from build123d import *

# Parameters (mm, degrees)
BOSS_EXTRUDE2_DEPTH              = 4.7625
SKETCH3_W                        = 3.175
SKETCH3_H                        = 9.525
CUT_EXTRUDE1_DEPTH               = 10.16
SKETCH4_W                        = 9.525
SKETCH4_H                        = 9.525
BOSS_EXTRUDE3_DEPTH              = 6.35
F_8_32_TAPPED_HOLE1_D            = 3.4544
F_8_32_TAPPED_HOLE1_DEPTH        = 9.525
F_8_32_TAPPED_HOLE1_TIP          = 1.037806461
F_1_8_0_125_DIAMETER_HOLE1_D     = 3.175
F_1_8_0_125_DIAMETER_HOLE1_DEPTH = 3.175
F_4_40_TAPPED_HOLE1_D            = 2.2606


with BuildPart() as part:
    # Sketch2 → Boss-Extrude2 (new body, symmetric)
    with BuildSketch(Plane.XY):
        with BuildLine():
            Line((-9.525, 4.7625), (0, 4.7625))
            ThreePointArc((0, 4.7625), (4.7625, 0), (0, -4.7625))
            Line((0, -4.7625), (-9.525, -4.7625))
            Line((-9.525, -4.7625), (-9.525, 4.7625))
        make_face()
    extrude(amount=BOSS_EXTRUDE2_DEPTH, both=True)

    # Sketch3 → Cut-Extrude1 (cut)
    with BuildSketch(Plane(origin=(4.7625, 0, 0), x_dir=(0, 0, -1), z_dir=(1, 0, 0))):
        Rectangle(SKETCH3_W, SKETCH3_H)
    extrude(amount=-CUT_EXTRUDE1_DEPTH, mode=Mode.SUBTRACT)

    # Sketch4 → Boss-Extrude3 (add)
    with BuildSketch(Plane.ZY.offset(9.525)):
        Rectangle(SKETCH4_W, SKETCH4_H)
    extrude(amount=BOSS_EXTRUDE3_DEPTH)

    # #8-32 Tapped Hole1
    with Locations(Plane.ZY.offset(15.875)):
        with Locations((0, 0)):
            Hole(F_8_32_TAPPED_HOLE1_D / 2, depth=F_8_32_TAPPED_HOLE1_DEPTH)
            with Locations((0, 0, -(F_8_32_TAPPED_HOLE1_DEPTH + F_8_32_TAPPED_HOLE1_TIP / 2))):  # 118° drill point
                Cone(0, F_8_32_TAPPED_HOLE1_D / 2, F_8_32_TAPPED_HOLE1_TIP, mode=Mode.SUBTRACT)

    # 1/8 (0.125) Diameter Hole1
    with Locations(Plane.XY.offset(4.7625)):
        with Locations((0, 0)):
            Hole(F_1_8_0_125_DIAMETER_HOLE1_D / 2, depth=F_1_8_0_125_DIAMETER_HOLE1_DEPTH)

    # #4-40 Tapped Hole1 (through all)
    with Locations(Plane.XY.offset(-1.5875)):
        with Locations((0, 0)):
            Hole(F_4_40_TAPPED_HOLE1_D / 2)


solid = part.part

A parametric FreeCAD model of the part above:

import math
import FreeCAD as App
import Part
import Sketcher
from FreeCAD import Vector
Q = App.Units.Quantity


def add_polygon(sketch, points):
    """Adds a closed chain of lines whose ends are joined by coincident constraints."""
    first, n = sketch.GeometryCount, len(points)
    for a, b in zip(points, points[1:] + points[:1]):
        sketch.addGeometry(Part.LineSegment(App.Vector(*a, 0), App.Vector(*b, 0)), False)
    for i in range(n):
        sketch.addConstraint(Sketcher.Constraint("Coincident", first + i, 2, first + (i + 1) % n, 1))

doc = App.newDocument("Part")
params = doc.addObject("Spreadsheet::Sheet", "Params")
for row, (alias, value) in enumerate([
    ("sketch1_radius", "0.1875 in"),
    ("pad1_length", "0.375 in"),
    ("sketch2_width", "0.375 in"),
    ("sketch2_height", "0.125 in"),
    ("pocket1_length", "0.4 in"),
    ("sketch3_width", "0.375 in"),
    ("pad2_length", "0.25 in"),
    ("sketch4_diameter", "0.136 in"),
    ("hole_diameter", "0.136 in"),
    ("hole_depth", "0.375 in"),
    ("sketch5_diameter", "0.125 in"),
    ("hole2_diameter", "0.125 in"),
    ("hole2_depth", "0.125 in"),
    ("sketch6_diameter", "0.089 in"),
    ("hole3_diameter", "0.089 in"),
], start=1):
    params.set(f"A{row}", alias)
    params.set(f"B{row}", "=" + value)
    params.setAlias(f"B{row}", alias)

body = doc.addObject("PartDesign::Body", "Body")

sketch1 = body.newObject("Sketcher::SketchObject", "Sketch")
sketch1.AttachmentSupport = (doc.getObject("XY_Plane"), [""])
sketch1.MapMode = "FlatFace"
sketch1.addGeometry([
    Part.LineSegment(Vector(0, 4.8, 0), Vector(-9.5, 4.8, 0)),
    Part.LineSegment(Vector(-9.5, 4.8, 0), Vector(-9.5, -4.8, 0)),
    Part.LineSegment(Vector(-9.5, -4.8, 0), Vector(0, -4.8, 0)),
    Part.ArcOfCircle(Part.Circle(Vector(0, 0, 0), Vector(0, 0, 1), 4.8), math.radians(-90), math.radians(90)),
], False)
sketch1.addConstraint([
    Sketcher.Constraint("Coincident", 0, 2, 1, 1),
    Sketcher.Constraint("Coincident", 1, 2, 2, 1),
    Sketcher.Constraint("Tangent", 2, 2, 3, 1),
    Sketcher.Constraint("Tangent", 3, 2, 0, 1),
    Sketcher.Constraint("Horizontal", 0),
    Sketcher.Constraint("Vertical", 1),
    Sketcher.Constraint("Horizontal", 2),
    Sketcher.Constraint("Coincident", 3, 3, -1, 1),
    Sketcher.Constraint("Equal", 2, 1),
    Sketcher.Constraint("Radius", 3, Q("0.1875 in")),
])
sketch1.setExpression("Constraints[9]", "Params.sketch1_radius")
pad1 = body.newObject("PartDesign::Pad", "Pad")
pad1.Profile = sketch1
pad1.setExpression("Length", "Params.pad1_length")
pad1.Midplane = True

sketch2 = body.newObject("Sketcher::SketchObject", "Sketch001")
sketch2.AttachmentSupport = (doc.getObject("YZ_Plane"), [""])
sketch2.MapMode = "FlatFace"
sketch2.AttachmentOffset = App.Placement(Vector(0, 0, 0.1875 * 25.4), App.Rotation())
add_polygon(sketch2, [(4.8, 1.6), (-4.8, 1.6), (-4.8, -1.6), (4.8, -1.6)])
sketch2.addConstraint([
    Sketcher.Constraint("Horizontal", 0),
    Sketcher.Constraint("Vertical", 1),
    Sketcher.Constraint("Horizontal", 2),
    Sketcher.Constraint("Vertical", 3),
    Sketcher.Constraint("Symmetric", 0, 2, 2, 2, -1, 1),
    Sketcher.Constraint("DistanceX", 0, 2, 0, 1, Q("0.375 in")),
    Sketcher.Constraint("DistanceY", 1, 2, 1, 1, Q("0.125 in")),
])
sketch2.setExpression("Constraints[9]", "Params.sketch2_width")
sketch2.setExpression("Constraints[10]", "Params.sketch2_height")
pocket1 = body.newObject("PartDesign::Pocket", "Pocket")
pocket1.Profile = sketch2
pocket1.setExpression("Length", "Params.pocket1_length")

sketch3 = body.newObject("Sketcher::SketchObject", "Sketch002")
sketch3.AttachmentSupport = (doc.getObject("YZ_Plane"), [""])
sketch3.MapMode = "FlatFace"
sketch3.AttachmentOffset = App.Placement(Vector(0, 0, -0.375 * 25.4), App.Rotation())
add_polygon(sketch3, [(5, -5), (-5, -5), (-5, 5), (5, 5)])
sketch3.addConstraint([
    Sketcher.Constraint("Horizontal", 0),
    Sketcher.Constraint("Vertical", 1),
    Sketcher.Constraint("Horizontal", 2),
    Sketcher.Constraint("Vertical", 3),
    Sketcher.Constraint("Symmetric", 0, 2, 2, 2, -1, 1),
    Sketcher.Constraint("Equal", 2, 1),
    Sketcher.Constraint("DistanceX", 0, 2, 0, 1, Q("0.375 in")),
])
sketch3.setExpression("Constraints[10]", "Params.sketch3_width")
pad2 = body.newObject("PartDesign::Pad", "Pad001")
pad2.Profile = sketch3
pad2.setExpression("Length", "Params.pad2_length")
pad2.Reversed = True

sketch4 = body.newObject("Sketcher::SketchObject", "Sketch003")
sketch4.AttachmentSupport = (doc.getObject("YZ_Plane"), [""])
sketch4.MapMode = "FlatFace"
sketch4.AttachmentOffset = App.Placement(Vector(0, 0, -0.625 * 25.4), App.Rotation())
sketch4.addGeometry(Part.Circle(Vector(0, 0, 0), Vector(0, 0, 1), 1.7), False)
sketch4.addConstraint([
    Sketcher.Constraint("Coincident", 0, 3, -1, 1),
    Sketcher.Constraint("Diameter", 0, Q("0.136 in")),
])
sketch4.setExpression("Constraints[1]", "Params.sketch4_diameter")
doc.recompute()
hole = body.newObject("PartDesign::Hole", "Hole")
hole.Profile = sketch4
hole.ThreadType = "None"
hole.setExpression("Diameter", "Params.hole_diameter")
hole.DepthType = "Dimension"
hole.setExpression("Depth", "Params.hole_depth")
hole.DrillPoint = "Angled"
hole.DrillPointAngle = 118
hole.Reversed = True

sketch5 = body.newObject("Sketcher::SketchObject", "Sketch004")
sketch5.AttachmentSupport = (doc.getObject("XY_Plane"), [""])
sketch5.MapMode = "FlatFace"
sketch5.AttachmentOffset = App.Placement(Vector(0, 0, 0.1875 * 25.4), App.Rotation())
sketch5.addGeometry(Part.Circle(Vector(0, 0, 0), Vector(0, 0, 1), 1.6), False)
sketch5.addConstraint([
    Sketcher.Constraint("Coincident", 0, 3, -1, 1),
    Sketcher.Constraint("Diameter", 0, Q("0.125 in")),
])
sketch5.setExpression("Constraints[1]", "Params.sketch5_diameter")
doc.recompute()
hole2 = body.newObject("PartDesign::Hole", "Hole001")
hole2.Profile = sketch5
hole2.ThreadType = "None"
hole2.setExpression("Diameter", "Params.hole2_diameter")
hole2.DepthType = "Dimension"
hole2.setExpression("Depth", "Params.hole2_depth")
hole2.DrillPoint = "Flat"

sketch6 = body.newObject("Sketcher::SketchObject", "Sketch005")
sketch6.AttachmentSupport = (doc.getObject("XY_Plane"), [""])
sketch6.MapMode = "FlatFace"
sketch6.AttachmentOffset = App.Placement(Vector(0, 0, -0.0625 * 25.4), App.Rotation())
sketch6.addGeometry(Part.Circle(Vector(0, 0, 0), Vector(0, 0, 1), 1.1), False)
sketch6.addConstraint([
    Sketcher.Constraint("Coincident", 0, 3, -1, 1),
    Sketcher.Constraint("Diameter", 0, Q("0.089 in")),
])
sketch6.setExpression("Constraints[1]", "Params.sketch6_diameter")
doc.recompute()
hole3 = body.newObject("PartDesign::Hole", "Hole002")
hole3.Profile = sketch6
hole3.ThreadType = "None"
hole3.setExpression("Diameter", "Params.hole3_diameter")
hole3.DepthType = "ThroughAll"

doc.recompute()
